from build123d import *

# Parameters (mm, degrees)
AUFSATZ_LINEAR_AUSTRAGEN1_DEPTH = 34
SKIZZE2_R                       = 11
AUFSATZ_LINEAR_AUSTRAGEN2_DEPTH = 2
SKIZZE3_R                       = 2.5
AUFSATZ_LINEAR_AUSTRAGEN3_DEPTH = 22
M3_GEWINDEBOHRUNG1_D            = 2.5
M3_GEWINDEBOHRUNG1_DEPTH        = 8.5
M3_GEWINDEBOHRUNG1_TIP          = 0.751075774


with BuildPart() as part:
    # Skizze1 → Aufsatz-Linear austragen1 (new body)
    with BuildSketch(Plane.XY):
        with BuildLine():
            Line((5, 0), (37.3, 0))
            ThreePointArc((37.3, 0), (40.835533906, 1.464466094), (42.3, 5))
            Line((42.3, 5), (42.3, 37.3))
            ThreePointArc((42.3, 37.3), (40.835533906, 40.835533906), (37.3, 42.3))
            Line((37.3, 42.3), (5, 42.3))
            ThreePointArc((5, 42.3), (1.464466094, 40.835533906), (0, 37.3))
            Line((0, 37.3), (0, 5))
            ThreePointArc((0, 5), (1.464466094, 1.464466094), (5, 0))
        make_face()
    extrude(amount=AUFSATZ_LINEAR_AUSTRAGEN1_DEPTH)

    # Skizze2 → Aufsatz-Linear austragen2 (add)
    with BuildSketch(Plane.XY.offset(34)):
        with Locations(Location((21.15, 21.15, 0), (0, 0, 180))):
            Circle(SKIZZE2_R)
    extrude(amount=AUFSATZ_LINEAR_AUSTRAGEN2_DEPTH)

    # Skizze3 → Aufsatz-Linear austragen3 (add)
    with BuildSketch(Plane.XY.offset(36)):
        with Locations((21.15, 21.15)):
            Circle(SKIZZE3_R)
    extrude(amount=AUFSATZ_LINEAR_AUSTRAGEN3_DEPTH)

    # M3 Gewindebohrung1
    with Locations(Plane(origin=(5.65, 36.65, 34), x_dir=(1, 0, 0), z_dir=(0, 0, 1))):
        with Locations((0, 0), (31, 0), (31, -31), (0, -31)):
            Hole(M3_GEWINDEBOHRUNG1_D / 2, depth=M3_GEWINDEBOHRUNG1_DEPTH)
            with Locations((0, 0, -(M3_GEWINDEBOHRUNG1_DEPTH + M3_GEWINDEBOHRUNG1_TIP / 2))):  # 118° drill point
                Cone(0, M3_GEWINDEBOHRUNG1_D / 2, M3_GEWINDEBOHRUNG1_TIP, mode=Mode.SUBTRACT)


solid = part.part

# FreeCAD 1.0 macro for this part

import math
import FreeCAD as App
import Part
import Sketcher

doc = App.newDocument("Part")
body = doc.addObject("PartDesign::Body", "Body")

# Sketch on XY plane
sketch1 = body.newObject("Sketcher::SketchObject", "Sketch")
sketch1.AttachmentSupport = (doc.getObject("XY_Plane"), [""])
sketch1.MapMode = "FlatFace"
sketch1.addGeometry(Part.LineSegment(App.Vector(5, 0, 0), App.Vector(37.3, 0, 0)), False)
sketch1.addGeometry(Part.ArcOfCircle(Part.Circle(App.Vector(37.3, 5, 0), App.Vector(0, 0, 1), 5), math.radians(-90), math.radians(0)), False)
sketch1.addGeometry(Part.LineSegment(App.Vector(42.3, 5, 0), App.Vector(42.3, 37.3, 0)), False)
sketch1.addGeometry(Part.ArcOfCircle(Part.Circle(App.Vector(37.3, 37.3, 0), App.Vector(0, 0, 1), 5), math.radians(0), math.radians(90)), False)
sketch1.addGeometry(Part.LineSegment(App.Vector(37.3, 42.3, 0), App.Vector(5, 42.3, 0)), False)
sketch1.addGeometry(Part.ArcOfCircle(Part.Circle(App.Vector(5, 37.3, 0), App.Vector(0, 0, 1), 5), math.radians(90), math.radians(180)), False)
sketch1.addGeometry(Part.LineSegment(App.Vector(0, 37.3, 0), App.Vector(0, 5, 0)), False)
sketch1.addGeometry(Part.ArcOfCircle(Part.Circle(App.Vector(5, 5, 0), App.Vector(0, 0, 1), 5), math.radians(180), math.radians(270)), False)
sketch1.addConstraint(Sketcher.Constraint("Tangent", 0, 2, 1, 1))
sketch1.addConstraint(Sketcher.Constraint("Tangent", 1, 2, 2, 1))
sketch1.addConstraint(Sketcher.Constraint("Tangent", 2, 2, 3, 1))
sketch1.addConstraint(Sketcher.Constraint("Tangent", 3, 2, 4, 1))
sketch1.addConstraint(Sketcher.Constraint("Tangent", 4, 2, 5, 1))
sketch1.addConstraint(Sketcher.Constraint("Tangent", 5, 2, 6, 1))
sketch1.addConstraint(Sketcher.Constraint("Tangent", 6, 2, 7, 1))
sketch1.addConstraint(Sketcher.Constraint("Tangent", 7, 2, 0, 1))
sketch1.addConstraint(Sketcher.Constraint("Horizontal", 0))
sketch1.addConstraint(Sketcher.Constraint("Vertical", 2))
sketch1.addConstraint(Sketcher.Constraint("Horizontal", 4))
sketch1.addConstraint(Sketcher.Constraint("Vertical", 6))
sketch1.addConstraint(Sketcher.Constraint("Equal", 1, 3))
sketch1.addConstraint(Sketcher.Constraint("Equal", 3, 5))
sketch1.addConstraint(Sketcher.Constraint("Equal", 5, 7))
sketch1.addConstraint(Sketcher.Constraint("PointOnObject", 0, 2, -1))
sketch1.addConstraint(Sketcher.Constraint("PointOnObject", 5, 2, -2))
sketch1.addConstraint(Sketcher.Constraint("Equal", 4, 2))
sketch1.addConstraint(Sketcher.Constraint("Radius", 1, 5.0))
sketch1.addConstraint(Sketcher.Constraint("DistanceX", 0, 1, 0, 2, 32.3))
pad1 = body.newObject("PartDesign::Pad", "Pad")
pad1.Profile = sketch1
pad1.Length = 34

# Sketch on XY plane
sketch2 = body.newObject("Sketcher::SketchObject", "Sketch001")
sketch2.AttachmentSupport = (doc.getObject("XY_Plane"), [""])
sketch2.MapMode = "FlatFace"
sketch2.AttachmentOffset = App.Placement(App.Vector(0, 0, 34), App.Rotation())
sketch2.addGeometry(Part.Circle(App.Vector(21.15, 21.15, 0), App.Vector(0, 0, 1), 11), False)
sketch2.addConstraint(Sketcher.Constraint("Diameter", 0, 22.0))
sketch2.addConstraint(Sketcher.Constraint("DistanceX", -1, 1, 0, 3, 21.15))
sketch2.addConstraint(Sketcher.Constraint("DistanceY", -1, 1, 0, 3, 21.15))
pad2 = body.newObject("PartDesign::Pad", "Pad001")
pad2.Profile = sketch2
pad2.Length = 2

# Sketch on XY plane
sketch3 = body.newObject("Sketcher::SketchObject", "Sketch002")
sketch3.AttachmentSupport = (doc.getObject("XY_Plane"), [""])
sketch3.MapMode = "FlatFace"
sketch3.AttachmentOffset = App.Placement(App.Vector(0, 0, 36), App.Rotation())
sketch3.addGeometry(Part.Circle(App.Vector(21.15, 21.15, 0), App.Vector(0, 0, 1), 2.5), False)
sketch3.addConstraint(Sketcher.Constraint("Diameter", 0, 5.0))
sketch3.addConstraint(Sketcher.Constraint("DistanceX", -1, 1, 0, 3, 21.15))
sketch3.addConstraint(Sketcher.Constraint("DistanceY", -1, 1, 0, 3, 21.15))
pad3 = body.newObject("PartDesign::Pad", "Pad002")
pad3.Profile = sketch3
pad3.Length = 22

# Sketch on XY plane
sketch4 = body.newObject("Sketcher::SketchObject", "Sketch003")
sketch4.AttachmentSupport = (doc.getObject("XY_Plane"), [""])
sketch4.MapMode = "FlatFace"
sketch4.AttachmentOffset = App.Placement(App.Vector(0, 0, 34), App.Rotation())
sketch4.addGeometry(Part.Circle(App.Vector(5.65, 36.65, 0), App.Vector(0, 0, 1), 1.25), False)
sketch4.addGeometry(Part.Circle(App.Vector(36.65, 36.65, 0), App.Vector(0, 0, 1), 1.25), False)
sketch4.addGeometry(Part.Circle(App.Vector(36.65, 5.65, 0), App.Vector(0, 0, 1), 1.25), False)
sketch4.addGeometry(Part.Circle(App.Vector(5.65, 5.65, 0), App.Vector(0, 0, 1), 1.25), False)
sketch4.addConstraint(Sketcher.Constraint("Equal", 0, 1))
sketch4.addConstraint(Sketcher.Constraint("Equal", 1, 2))
sketch4.addConstraint(Sketcher.Constraint("Equal", 2, 3))
sketch4.addConstraint(Sketcher.Constraint("Horizontal", 0, 3, 1, 3))
sketch4.addConstraint(Sketcher.Constraint("Horizontal", 2, 3, 3, 3))
sketch4.addConstraint(Sketcher.Constraint("Vertical", 1, 3, 2, 3))
sketch4.addConstraint(Sketcher.Constraint("Vertical", 0, 3, 3, 3))
sketch4.addConstraint(Sketcher.Constraint("Diameter", 0, 2.5))
sketch4.addConstraint(Sketcher.Constraint("DistanceX", 0, 3, 1, 3, 31.0))
sketch4.addConstraint(Sketcher.Constraint("DistanceY", 2, 3, 1, 3, 31.0))
sketch4.addConstraint(Sketcher.Constraint("DistanceX", -1, 1, 0, 3, 5.65))
sketch4.addConstraint(Sketcher.Constraint("DistanceY", -1, 1, 0, 3, 36.65))
doc.recompute()
hole = body.newObject("PartDesign::Hole", "Hole")
hole.Profile = sketch4
hole.ThreadType = "None"
hole.Diameter = 2.5
hole.DepthType = "Dimension"
hole.Depth = 8.5
hole.DrillPoint = "Angled"
hole.DrillPointAngle = 118

doc.recompute()
